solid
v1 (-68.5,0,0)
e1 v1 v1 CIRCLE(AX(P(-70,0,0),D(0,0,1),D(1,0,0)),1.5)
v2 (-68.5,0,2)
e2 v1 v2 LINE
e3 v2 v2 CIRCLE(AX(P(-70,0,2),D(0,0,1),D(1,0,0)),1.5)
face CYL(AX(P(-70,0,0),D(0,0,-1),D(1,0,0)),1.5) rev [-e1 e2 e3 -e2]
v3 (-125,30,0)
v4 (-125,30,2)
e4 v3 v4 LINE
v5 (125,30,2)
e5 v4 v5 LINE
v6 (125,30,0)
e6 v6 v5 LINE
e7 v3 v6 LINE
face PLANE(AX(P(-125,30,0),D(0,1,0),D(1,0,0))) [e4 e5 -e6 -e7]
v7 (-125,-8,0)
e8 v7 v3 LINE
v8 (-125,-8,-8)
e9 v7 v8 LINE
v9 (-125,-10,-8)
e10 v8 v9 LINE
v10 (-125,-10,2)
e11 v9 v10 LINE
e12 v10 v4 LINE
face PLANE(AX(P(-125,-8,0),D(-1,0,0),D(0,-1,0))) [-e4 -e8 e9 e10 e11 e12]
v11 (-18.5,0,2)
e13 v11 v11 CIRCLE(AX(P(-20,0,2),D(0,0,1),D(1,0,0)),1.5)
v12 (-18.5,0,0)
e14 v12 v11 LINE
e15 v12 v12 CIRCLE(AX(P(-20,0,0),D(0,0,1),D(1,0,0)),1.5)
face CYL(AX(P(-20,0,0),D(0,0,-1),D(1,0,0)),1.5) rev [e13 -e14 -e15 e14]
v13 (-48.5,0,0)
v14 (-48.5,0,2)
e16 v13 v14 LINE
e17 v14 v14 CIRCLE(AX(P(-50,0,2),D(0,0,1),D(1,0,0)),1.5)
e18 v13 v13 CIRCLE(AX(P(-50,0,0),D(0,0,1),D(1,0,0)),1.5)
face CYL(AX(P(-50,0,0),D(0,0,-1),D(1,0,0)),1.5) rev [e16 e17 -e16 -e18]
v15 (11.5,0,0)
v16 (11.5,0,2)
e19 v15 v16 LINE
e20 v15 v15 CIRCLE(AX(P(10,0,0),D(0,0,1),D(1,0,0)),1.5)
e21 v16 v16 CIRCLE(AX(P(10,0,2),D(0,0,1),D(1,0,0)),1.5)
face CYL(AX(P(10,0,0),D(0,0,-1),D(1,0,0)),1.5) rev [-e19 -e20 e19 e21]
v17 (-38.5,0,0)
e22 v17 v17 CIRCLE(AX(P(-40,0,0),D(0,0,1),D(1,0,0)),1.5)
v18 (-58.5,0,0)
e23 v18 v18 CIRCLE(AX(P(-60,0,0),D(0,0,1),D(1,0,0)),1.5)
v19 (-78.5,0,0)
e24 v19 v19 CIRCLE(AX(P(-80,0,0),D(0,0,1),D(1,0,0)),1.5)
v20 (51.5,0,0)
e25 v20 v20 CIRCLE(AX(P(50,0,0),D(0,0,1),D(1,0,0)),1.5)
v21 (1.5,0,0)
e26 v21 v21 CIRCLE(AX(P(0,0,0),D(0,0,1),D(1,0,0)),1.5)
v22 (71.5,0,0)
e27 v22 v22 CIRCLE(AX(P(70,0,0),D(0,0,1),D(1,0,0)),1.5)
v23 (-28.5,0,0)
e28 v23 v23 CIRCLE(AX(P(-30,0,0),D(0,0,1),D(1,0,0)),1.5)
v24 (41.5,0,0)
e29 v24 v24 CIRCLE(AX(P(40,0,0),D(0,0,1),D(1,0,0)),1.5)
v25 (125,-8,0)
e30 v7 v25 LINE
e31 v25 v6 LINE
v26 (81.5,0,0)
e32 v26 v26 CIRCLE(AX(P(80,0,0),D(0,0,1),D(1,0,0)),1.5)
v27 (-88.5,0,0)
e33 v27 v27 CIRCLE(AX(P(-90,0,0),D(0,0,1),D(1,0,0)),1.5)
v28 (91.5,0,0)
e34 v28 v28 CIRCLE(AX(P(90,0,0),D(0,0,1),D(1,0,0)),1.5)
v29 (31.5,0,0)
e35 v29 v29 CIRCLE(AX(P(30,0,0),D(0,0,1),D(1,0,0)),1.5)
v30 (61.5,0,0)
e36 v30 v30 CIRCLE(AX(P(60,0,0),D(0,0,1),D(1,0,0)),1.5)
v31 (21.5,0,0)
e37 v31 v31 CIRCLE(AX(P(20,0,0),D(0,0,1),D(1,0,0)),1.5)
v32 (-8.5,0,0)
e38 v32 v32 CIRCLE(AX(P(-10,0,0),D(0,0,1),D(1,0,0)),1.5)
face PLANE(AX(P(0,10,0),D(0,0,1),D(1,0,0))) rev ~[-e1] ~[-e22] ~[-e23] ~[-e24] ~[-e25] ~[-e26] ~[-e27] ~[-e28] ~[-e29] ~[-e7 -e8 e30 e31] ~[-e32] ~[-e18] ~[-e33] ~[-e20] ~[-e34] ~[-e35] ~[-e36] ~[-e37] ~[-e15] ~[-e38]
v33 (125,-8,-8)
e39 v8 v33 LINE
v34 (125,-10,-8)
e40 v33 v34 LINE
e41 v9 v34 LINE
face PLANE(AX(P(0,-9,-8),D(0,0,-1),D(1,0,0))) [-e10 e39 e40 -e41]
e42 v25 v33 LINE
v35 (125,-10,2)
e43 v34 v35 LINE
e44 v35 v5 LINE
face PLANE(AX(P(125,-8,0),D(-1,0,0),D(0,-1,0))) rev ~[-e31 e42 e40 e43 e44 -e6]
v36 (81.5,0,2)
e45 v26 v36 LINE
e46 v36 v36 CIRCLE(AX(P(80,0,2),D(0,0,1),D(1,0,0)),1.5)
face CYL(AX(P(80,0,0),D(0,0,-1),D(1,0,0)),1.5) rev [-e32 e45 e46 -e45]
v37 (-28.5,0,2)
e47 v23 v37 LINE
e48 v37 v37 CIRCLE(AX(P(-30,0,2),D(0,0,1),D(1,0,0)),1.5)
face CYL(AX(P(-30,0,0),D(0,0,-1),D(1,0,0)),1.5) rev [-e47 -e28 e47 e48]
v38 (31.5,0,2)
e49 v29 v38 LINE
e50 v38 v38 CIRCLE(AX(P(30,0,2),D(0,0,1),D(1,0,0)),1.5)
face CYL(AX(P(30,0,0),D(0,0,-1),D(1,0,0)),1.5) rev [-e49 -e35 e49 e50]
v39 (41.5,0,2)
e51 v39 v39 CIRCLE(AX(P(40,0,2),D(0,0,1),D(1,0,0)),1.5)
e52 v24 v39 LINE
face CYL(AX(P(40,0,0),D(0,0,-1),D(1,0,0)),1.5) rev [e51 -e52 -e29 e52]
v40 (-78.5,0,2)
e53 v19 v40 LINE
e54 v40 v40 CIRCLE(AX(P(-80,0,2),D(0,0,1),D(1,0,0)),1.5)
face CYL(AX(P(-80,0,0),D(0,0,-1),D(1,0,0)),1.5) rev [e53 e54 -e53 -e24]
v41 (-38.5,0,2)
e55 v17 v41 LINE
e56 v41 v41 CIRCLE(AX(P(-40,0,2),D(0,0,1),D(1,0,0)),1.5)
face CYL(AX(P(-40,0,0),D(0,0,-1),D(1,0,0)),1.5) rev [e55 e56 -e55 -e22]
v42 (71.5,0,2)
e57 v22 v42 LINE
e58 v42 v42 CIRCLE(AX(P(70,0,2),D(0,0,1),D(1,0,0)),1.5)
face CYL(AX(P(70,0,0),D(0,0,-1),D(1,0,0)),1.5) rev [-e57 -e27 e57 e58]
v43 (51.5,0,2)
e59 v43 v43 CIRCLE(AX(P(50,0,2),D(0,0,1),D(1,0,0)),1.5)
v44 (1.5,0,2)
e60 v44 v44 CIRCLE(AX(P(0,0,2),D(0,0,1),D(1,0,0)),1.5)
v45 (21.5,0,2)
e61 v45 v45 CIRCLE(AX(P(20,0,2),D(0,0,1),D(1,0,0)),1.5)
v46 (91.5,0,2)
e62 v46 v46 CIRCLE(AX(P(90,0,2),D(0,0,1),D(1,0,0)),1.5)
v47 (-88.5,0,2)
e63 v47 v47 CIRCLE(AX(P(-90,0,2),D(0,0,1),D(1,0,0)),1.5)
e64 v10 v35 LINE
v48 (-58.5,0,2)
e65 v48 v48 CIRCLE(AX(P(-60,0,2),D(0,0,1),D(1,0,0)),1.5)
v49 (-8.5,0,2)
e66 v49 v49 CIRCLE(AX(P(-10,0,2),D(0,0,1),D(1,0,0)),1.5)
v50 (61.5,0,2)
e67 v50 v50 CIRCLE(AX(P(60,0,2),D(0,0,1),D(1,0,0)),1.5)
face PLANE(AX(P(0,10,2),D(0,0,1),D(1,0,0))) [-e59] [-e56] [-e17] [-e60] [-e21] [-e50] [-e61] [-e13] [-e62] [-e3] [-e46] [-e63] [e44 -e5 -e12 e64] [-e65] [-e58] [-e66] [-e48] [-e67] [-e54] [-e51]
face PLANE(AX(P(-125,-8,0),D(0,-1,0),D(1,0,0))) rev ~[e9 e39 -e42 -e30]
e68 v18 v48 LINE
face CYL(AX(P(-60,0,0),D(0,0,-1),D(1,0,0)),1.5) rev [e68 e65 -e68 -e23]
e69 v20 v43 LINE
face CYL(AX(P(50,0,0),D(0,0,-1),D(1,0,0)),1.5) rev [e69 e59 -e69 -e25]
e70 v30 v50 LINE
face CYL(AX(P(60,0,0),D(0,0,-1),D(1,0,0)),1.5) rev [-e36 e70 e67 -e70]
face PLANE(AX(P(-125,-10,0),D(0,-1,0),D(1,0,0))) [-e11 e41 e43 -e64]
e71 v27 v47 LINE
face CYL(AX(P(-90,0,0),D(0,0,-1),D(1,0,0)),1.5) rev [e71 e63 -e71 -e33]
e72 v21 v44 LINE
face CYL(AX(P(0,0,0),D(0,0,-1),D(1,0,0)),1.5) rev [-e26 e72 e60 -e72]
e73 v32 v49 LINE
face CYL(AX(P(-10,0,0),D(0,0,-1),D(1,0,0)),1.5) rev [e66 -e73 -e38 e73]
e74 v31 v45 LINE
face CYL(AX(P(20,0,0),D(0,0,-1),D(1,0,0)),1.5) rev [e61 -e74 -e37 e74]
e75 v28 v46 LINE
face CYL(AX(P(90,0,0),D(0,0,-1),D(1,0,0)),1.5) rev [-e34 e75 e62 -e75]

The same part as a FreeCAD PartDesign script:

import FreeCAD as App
import Part
import Sketcher
Q = App.Units.Quantity


def add_polygon(sketch, points):
    """Adds a closed chain of lines whose ends are joined by coincident constraints."""
    first, n = sketch.GeometryCount, len(points)
    for a, b in zip(points, points[1:] + points[:1]):
        sketch.addGeometry(Part.LineSegment(App.Vector(*a, 0), App.Vector(*b, 0)), False)
    for i in range(n):
        sketch.addConstraint(Sketcher.Constraint("Coincident", first + i, 2, first + (i + 1) % n, 1))

doc = App.newDocument("Part")
params = doc.addObject("Spreadsheet::Sheet", "Params")
for row, (alias, value) in enumerate([
    ("sketch1_diameter", "3 mm"),
    ("sketch1_width", "250 mm"),
    ("sketch1_height", "40 mm"),
    ("pad1_length", "2 mm"),
    ("sketch2_width", "250 mm"),
    ("sketch2_height", "2 mm"),
    ("pad2_length", "8 mm"),
], start=1):
    params.set(f"A{row}", alias)
    params.set(f"B{row}", "=" + value)
    params.setAlias(f"B{row}", alias)

body = doc.addObject("PartDesign::Body", "Body")

sketch1 = body.newObject("Sketcher::SketchObject", "Sketch")
sketch1.AttachmentSupport = (doc.getObject("XY_Plane"), [""])
sketch1.MapMode = "FlatFace"
add_polygon(sketch1, [(-125, 30), (-125, -10), (125, -10), (125, 30)])
sketch1.addGeometry(Part.Circle(App.Vector(-90, 0, 0), App.Vector(0, 0, 1), 1.5), False)
sketch1.addGeometry(Part.Circle(App.Vector(-80, 0, 0), App.Vector(0, 0, 1), 1.5), False)
sketch1.addGeometry(Part.Circle(App.Vector(-70, 0, 0), App.Vector(0, 0, 1), 1.5), False)
sketch1.addGeometry(Part.Circle(App.Vector(-60, 0, 0), App.Vector(0, 0, 1), 1.5), False)
sketch1.addGeometry(Part.Circle(App.Vector(-50, 0, 0), App.Vector(0, 0, 1), 1.5), False)
sketch1.addGeometry(Part.Circle(App.Vector(-40, 0, 0), App.Vector(0, 0, 1), 1.5), False)
sketch1.addGeometry(Part.Circle(App.Vector(-30, 0, 0), App.Vector(0, 0, 1), 1.5), False)
sketch1.addGeometry(Part.Circle(App.Vector(-20, 0, 0), App.Vector(0, 0, 1), 1.5), False)
sketch1.addGeometry(Part.Circle(App.Vector(-10, 0, 0), App.Vector(0, 0, 1), 1.5), False)
sketch1.addGeometry(Part.Circle(App.Vector(0, 0, 0), App.Vector(0, 0, 1), 1.5), False)
sketch1.addGeometry(Part.Circle(App.Vector(10, 0, 0), App.Vector(0, 0, 1), 1.5), False)
sketch1.addGeometry(Part.Circle(App.Vector(20, 0, 0), App.Vector(0, 0, 1), 1.5), False)
sketch1.addGeometry(Part.Circle(App.Vector(30, 0, 0), App.Vector(0, 0, 1), 1.5), False)
sketch1.addGeometry(Part.Circle(App.Vector(40, 0, 0), App.Vector(0, 0, 1), 1.5), False)
sketch1.addGeometry(Part.Circle(App.Vector(50, 0, 0), App.Vector(0, 0, 1), 1.5), False)
sketch1.addGeometry(Part.Circle(App.Vector(60, 0, 0), App.Vector(0, 0, 1), 1.5), False)
sketch1.addGeometry(Part.Circle(App.Vector(70, 0, 0), App.Vector(0, 0, 1), 1.5), False)
sketch1.addGeometry(Part.Circle(App.Vector(80, 0, 0), App.Vector(0, 0, 1), 1.5), False)
sketch1.addGeometry(Part.Circle(App.Vector(90, 0, 0), App.Vector(0, 0, 1), 1.5), False)
sketch1.addConstraint(Sketcher.Constraint("Vertical", 0))
sketch1.addConstraint(Sketcher.Constraint("Horizontal", 1))
sketch1.addConstraint(Sketcher.Constraint("Vertical", 2))
sketch1.addConstraint(Sketcher.Constraint("Horizontal", 3))
sketch1.addConstraint(Sketcher.Constraint("Coincident", 13, 3, -1, 1))
sketch1.addConstraint(Sketcher.Constraint("Equal", 4, 5))
sketch1.addConstraint(Sketcher.Constraint("Equal", 5, 6))
sketch1.addConstraint(Sketcher.Constraint("Equal", 6, 7))
sketch1.addConstraint(Sketcher.Constraint("Equal", 7, 8))
sketch1.addConstraint(Sketcher.Constraint("Equal", 8, 9))
sketch1.addConstraint(Sketcher.Constraint("Equal", 9, 10))
sketch1.addConstraint(Sketcher.Constraint("Equal", 10, 11))
sketch1.addConstraint(Sketcher.Constraint("Equal", 11, 12))
sketch1.addConstraint(Sketcher.Constraint("Equal", 12, 13))
sketch1.addConstraint(Sketcher.Constraint("Equal", 13, 14))
sketch1.addConstraint(Sketcher.Constraint("Equal", 14, 15))
sketch1.addConstraint(Sketcher.Constraint("Equal", 15, 16))
sketch1.addConstraint(Sketcher.Constraint("Equal", 16, 17))
sketch1.addConstraint(Sketcher.Constraint("Equal", 17, 18))
sketch1.addConstraint(Sketcher.Constraint("Equal", 18, 19))
sketch1.addConstraint(Sketcher.Constraint("Equal", 19, 20))
sketch1.addConstraint(Sketcher.Constraint("Equal", 20, 21))
sketch1.addConstraint(Sketcher.Constraint("Equal", 21, 22))
sketch1.addConstraint(Sketcher.Constraint("Symmetric", 12, 3, 14, 3, -1, 1))
sketch1.addConstraint(Sketcher.Constraint("Symmetric", 11, 3, 15, 3, -1, 1))
sketch1.addConstraint(Sketcher.Constraint("Symmetric", 10, 3, 16, 3, -1, 1))
sketch1.addConstraint(Sketcher.Constraint("Symmetric", 9, 3, 17, 3, -1, 1))
sketch1.addConstraint(Sketcher.Constraint("Symmetric", 8, 3, 18, 3, -1, 1))
sketch1.addConstraint(Sketcher.Constraint("Symmetric", 7, 3, 19, 3, -1, 1))
sketch1.addConstraint(Sketcher.Constraint("Symmetric", 6, 3, 20, 3, -1, 1))
sketch1.addConstraint(Sketcher.Constraint("Symmetric", 5, 3, 21, 3, -1, 1))
sketch1.addConstraint(Sketcher.Constraint("Symmetric", 4, 3, 22, 3, -1, 1))
sketch1.addConstraint(Sketcher.Constraint("PointOnObject", 4, 3, -1))
sketch1.addConstraint(Sketcher.Constraint("PointOnObject", 5, 3, -1))
sketch1.addConstraint(Sketcher.Constraint("PointOnObject", 6, 3, -1))
sketch1.addConstraint(Sketcher.Constraint("PointOnObject", 7, 3, -1))
sketch1.addConstraint(Sketcher.Constraint("PointOnObject", 8, 3, -1))
sketch1.addConstraint(Sketcher.Constraint("PointOnObject", 9, 3, -1))
sketch1.addConstraint(Sketcher.Constraint("PointOnObject", 10, 3, -1))
sketch1.addConstraint(Sketcher.Constraint("PointOnObject", 11, 3, -1))
sketch1.addConstraint(Sketcher.Constraint("PointOnObject", 12, 3, -1))
sketch1.addConstraint(Sketcher.Constraint("Diameter", 4, Q("3 mm")))
sketch1.addConstraint(Sketcher.Constraint("DistanceX", 1, 1, 1, 2, Q("250 mm")))
sketch1.addConstraint(Sketcher.Constraint("DistanceY", 0, 2, 0, 1, Q("40 mm")))
sketch1.addConstraint(Sketcher.Constraint("DistanceX", 4, 3, -1, 1, Q("90 mm")))
sketch1.addConstraint(Sketcher.Constraint("DistanceX", 5, 3, -1, 1, Q("80 mm")))
sketch1.addConstraint(Sketcher.Constraint("DistanceX", 6, 3, -1, 1, Q("70 mm")))
sketch1.addConstraint(Sketcher.Constraint("DistanceX", 7, 3, -1, 1, Q("60 mm")))
sketch1.addConstraint(Sketcher.Constraint("DistanceX", 8, 3, -1, 1, Q("50 mm")))
sketch1.addConstraint(Sketcher.Constraint("DistanceX", 9, 3, -1, 1, Q("40 mm")))
sketch1.addConstraint(Sketcher.Constraint("DistanceX", 10, 3, -1, 1, Q("30 mm")))
sketch1.addConstraint(Sketcher.Constraint("DistanceX", 11, 3, -1, 1, Q("20 mm")))
sketch1.addConstraint(Sketcher.Constraint("DistanceX", 12, 3, -1, 1, Q("10 mm")))
sketch1.addConstraint(Sketcher.Constraint("DistanceX", 0, 2, -1, 1, Q("125 mm")))
sketch1.addConstraint(Sketcher.Constraint("DistanceY", 0, 2, -1, 1, Q("10 mm")))
sketch1.setExpression("Constraints[45]", "Params.sketch1_diameter")
sketch1.setExpression("Constraints[46]", "Params.sketch1_width")
sketch1.setExpression("Constraints[47]", "Params.sketch1_height")
pad1 = body.newObject("PartDesign::Pad", "Pad")
pad1.Profile = sketch1
pad1.setExpression("Length", "Params.pad1_length")

sketch2 = body.newObject("Sketcher::SketchObject", "Sketch001")
sketch2.AttachmentSupport = (doc.getObject("XY_Plane"), [""])
sketch2.MapMode = "FlatFace"
add_polygon(sketch2, [(-125, -10), (-125, -8), (125, -8), (125, -10)])
sketch2.addConstraint(Sketcher.Constraint("Vertical", 0))
sketch2.addConstraint(Sketcher.Constraint("Horizontal", 1))
sketch2.addConstraint(Sketcher.Constraint("Vertical", 2))
sketch2.addConstraint(Sketcher.Constraint("Horizontal", 3))
sketch2.addConstraint(Sketcher.Constraint("DistanceX", 1, 1, 1, 2, Q("250 mm")))
sketch2.addConstraint(Sketcher.Constraint("DistanceY", 0, 1, 0, 2, Q("2 mm")))
sketch2.addConstraint(Sketcher.Constraint("DistanceX", 0, 2, -1, 1, Q("125 mm")))
sketch2.addConstraint(Sketcher.Constraint("DistanceY", 0, 2, -1, 1, Q("8 mm")))
sketch2.setExpression("Constraints[8]", "Params.sketch2_width")
sketch2.setExpression("Constraints[9]", "Params.sketch2_height")
pad2 = body.newObject("PartDesign::Pad", "Pad001")
pad2.Profile = sketch2
pad2.setExpression("Length", "Params.pad2_length")
pad2.Reversed = True

doc.recompute()
